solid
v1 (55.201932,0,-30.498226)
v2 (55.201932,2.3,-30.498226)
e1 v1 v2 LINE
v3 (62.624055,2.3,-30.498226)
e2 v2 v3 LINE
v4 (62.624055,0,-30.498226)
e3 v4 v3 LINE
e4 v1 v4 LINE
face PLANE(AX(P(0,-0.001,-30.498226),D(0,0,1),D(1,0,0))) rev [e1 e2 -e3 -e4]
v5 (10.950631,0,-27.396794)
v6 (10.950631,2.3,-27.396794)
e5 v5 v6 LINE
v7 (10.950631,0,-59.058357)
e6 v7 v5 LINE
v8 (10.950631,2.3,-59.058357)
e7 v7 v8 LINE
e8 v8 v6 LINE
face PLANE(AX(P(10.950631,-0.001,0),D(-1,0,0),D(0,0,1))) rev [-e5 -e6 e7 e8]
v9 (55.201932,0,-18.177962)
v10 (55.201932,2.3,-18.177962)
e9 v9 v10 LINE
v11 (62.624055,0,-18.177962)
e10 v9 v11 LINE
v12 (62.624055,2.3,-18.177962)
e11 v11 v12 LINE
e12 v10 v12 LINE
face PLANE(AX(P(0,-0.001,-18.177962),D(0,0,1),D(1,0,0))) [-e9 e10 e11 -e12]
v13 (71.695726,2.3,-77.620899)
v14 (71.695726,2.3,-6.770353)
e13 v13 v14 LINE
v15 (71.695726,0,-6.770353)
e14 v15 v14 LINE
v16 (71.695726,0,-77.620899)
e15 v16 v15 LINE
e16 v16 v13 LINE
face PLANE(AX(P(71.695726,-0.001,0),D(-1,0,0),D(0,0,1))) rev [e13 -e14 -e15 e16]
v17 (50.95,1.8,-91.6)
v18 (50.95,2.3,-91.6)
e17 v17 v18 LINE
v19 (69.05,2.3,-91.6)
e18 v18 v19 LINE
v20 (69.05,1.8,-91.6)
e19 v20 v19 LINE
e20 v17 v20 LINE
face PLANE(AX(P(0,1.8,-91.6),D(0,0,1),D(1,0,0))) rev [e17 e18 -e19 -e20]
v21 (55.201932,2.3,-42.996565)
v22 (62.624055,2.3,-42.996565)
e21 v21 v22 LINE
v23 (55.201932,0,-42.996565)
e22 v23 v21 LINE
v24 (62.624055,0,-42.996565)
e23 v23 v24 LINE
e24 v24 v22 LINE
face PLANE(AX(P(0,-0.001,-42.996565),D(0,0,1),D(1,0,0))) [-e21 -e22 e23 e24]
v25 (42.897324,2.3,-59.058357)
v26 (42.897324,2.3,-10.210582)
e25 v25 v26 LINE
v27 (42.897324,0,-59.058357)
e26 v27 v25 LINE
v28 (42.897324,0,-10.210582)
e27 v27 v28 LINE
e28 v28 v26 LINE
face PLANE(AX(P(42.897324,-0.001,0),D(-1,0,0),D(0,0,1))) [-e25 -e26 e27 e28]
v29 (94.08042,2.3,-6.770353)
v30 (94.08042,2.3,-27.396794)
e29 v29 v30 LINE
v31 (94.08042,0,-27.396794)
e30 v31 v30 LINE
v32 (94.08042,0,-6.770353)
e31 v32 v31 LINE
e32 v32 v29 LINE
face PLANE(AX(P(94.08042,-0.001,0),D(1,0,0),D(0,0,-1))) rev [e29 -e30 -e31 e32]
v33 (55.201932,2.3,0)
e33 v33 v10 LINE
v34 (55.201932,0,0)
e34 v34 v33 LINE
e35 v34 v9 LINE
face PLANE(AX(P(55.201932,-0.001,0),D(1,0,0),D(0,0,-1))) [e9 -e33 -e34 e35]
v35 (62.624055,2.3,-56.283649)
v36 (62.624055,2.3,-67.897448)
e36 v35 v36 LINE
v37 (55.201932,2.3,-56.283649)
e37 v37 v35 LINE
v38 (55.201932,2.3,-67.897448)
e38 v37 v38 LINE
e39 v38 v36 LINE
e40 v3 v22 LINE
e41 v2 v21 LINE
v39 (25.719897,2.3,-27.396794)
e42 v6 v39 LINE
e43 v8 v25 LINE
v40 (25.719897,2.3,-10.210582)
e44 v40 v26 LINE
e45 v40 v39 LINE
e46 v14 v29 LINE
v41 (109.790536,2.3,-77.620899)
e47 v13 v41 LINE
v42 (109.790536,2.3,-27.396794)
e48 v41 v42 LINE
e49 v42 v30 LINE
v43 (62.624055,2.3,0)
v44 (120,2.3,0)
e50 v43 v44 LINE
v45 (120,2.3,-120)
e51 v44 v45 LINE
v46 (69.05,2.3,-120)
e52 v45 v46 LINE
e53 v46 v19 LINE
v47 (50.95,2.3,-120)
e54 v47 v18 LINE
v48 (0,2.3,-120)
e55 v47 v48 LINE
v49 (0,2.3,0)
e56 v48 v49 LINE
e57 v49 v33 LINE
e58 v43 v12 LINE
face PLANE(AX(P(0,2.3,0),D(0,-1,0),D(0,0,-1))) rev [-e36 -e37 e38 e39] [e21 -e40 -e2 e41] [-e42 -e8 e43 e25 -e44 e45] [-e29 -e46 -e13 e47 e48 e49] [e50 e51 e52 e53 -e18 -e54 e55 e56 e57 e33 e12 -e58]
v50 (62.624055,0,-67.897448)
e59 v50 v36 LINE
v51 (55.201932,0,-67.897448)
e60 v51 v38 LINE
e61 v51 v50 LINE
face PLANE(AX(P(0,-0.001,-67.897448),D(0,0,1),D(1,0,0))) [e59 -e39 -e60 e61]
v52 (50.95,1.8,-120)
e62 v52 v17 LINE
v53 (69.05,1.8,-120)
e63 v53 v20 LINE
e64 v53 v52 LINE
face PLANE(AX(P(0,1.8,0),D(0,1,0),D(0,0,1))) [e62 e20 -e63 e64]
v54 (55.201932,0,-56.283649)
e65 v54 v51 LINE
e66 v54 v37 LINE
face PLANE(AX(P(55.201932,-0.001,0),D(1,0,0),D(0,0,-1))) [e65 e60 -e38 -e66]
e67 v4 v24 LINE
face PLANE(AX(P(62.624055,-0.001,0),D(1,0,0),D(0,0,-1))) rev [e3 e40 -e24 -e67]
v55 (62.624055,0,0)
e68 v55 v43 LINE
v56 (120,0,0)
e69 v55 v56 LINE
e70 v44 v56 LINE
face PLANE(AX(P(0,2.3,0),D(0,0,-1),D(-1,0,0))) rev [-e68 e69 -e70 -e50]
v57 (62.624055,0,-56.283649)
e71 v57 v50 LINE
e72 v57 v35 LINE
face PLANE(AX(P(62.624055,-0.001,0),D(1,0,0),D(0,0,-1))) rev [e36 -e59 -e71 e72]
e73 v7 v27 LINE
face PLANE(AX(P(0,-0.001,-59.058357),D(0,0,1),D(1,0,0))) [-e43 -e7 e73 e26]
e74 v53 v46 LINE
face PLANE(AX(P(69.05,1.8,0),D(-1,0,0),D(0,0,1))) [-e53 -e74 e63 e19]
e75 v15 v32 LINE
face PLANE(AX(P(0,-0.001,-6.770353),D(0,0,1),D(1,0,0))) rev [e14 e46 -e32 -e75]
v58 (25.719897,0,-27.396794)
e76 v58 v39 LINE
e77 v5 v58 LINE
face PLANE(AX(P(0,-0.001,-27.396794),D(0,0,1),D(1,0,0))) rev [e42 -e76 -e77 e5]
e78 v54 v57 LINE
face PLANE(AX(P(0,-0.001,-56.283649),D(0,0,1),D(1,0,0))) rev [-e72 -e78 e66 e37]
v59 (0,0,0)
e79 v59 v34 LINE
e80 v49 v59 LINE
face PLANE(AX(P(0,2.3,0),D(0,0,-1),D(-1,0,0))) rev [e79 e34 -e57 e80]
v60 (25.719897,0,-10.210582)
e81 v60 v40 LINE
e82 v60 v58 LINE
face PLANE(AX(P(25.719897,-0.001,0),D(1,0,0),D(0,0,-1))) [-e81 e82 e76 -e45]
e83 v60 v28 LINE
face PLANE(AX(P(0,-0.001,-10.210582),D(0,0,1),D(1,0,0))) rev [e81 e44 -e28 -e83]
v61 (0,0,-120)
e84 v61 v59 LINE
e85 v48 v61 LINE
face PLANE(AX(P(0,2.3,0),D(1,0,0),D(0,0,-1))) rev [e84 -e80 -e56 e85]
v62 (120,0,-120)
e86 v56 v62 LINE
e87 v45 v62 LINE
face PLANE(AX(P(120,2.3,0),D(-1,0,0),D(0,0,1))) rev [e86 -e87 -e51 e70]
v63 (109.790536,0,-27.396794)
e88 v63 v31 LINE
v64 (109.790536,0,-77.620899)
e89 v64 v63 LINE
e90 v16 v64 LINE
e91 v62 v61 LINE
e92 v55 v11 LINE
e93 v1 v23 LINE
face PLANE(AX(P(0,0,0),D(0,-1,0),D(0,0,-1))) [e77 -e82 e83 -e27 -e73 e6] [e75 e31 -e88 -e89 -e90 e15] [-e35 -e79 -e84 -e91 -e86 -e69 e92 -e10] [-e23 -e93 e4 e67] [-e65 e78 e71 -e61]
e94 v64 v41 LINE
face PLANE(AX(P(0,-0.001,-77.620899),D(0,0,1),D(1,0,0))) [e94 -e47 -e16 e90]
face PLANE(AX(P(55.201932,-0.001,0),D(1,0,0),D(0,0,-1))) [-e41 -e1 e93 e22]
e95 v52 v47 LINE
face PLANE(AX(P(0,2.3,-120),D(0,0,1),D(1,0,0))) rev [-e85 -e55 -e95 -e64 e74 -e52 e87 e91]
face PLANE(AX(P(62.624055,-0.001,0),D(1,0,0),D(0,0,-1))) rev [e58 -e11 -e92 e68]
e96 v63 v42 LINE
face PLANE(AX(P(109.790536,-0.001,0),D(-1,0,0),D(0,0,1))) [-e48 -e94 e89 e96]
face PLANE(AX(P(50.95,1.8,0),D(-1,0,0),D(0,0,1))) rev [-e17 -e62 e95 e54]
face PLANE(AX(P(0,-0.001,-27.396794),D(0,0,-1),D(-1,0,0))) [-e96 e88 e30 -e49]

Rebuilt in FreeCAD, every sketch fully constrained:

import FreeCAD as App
import Part
import Sketcher

V = App.Vector
Q = App.Units.Quantity

doc = App.newDocument("Part")
body = doc.addObject("PartDesign::Body", "Body")

sketch1 = body.newObject("Sketcher::SketchObject", "Sketch")
sketch1.AttachmentSupport = (doc.getObject("XZ_Plane"), [""])
sketch1.MapMode = "FlatFace"
sketch1.addGeometry(Part.LineSegment(V(0, -120, 0), V(0, 0, 0)), False)
sketch1.addGeometry(Part.LineSegment(V(0, 0, 0), V(120, 0, 0)), False)
sketch1.addGeometry(Part.LineSegment(V(120, 0, 0), V(120, -120, 0)), False)
sketch1.addGeometry(Part.LineSegment(V(120, -120, 0), V(0, -120, 0)), False)
sketch1.addConstraint(Sketcher.Constraint("Coincident", 0, 2, 1, 1))
sketch1.addConstraint(Sketcher.Constraint("Coincident", 1, 2, 2, 1))
sketch1.addConstraint(Sketcher.Constraint("Coincident", 2, 2, 3, 1))
sketch1.addConstraint(Sketcher.Constraint("Coincident", 3, 2, 0, 1))
sketch1.addConstraint(Sketcher.Constraint("Vertical", 0))
sketch1.addConstraint(Sketcher.Constraint("Horizontal", 1))
sketch1.addConstraint(Sketcher.Constraint("Vertical", 2))
sketch1.addConstraint(Sketcher.Constraint("Horizontal", 3))
sketch1.addConstraint(Sketcher.Constraint("Coincident", 0, 2, -1, 1))
sketch1.addConstraint(Sketcher.Constraint("Equal", 3, 0))
sketch1.addConstraint(Sketcher.Constraint("DistanceX", 1, 1, 1, 2, Q("120 mm")))
pad1 = body.newObject("PartDesign::Pad", "Pad")
pad1.Profile = sketch1
pad1.Length = 2.3
pad1.Reversed = True

sketch2 = body.newObject("Sketcher::SketchObject", "Sketch001")
sketch2.AttachmentSupport = (doc.getObject("XZ_Plane"), [""])
sketch2.MapMode = "FlatFace"
sketch2.AttachmentOffset = App.Placement(V(0, 0, -2.3), App.Rotation())
sketch2.addGeometry(Part.LineSegment(V(43, -59, 0), V(11, -59, 0)), False)
sketch2.addGeometry(Part.LineSegment(V(11, -59, 0), V(11, -27, 0)), False)
sketch2.addGeometry(Part.LineSegment(V(11, -27, 0), V(26, -27, 0)), False)
sketch2.addGeometry(Part.LineSegment(V(26, -27, 0), V(26, -10, 0)), False)
sketch2.addGeometry(Part.LineSegment(V(26, -10, 0), V(43, -10, 0)), False)
sketch2.addGeometry(Part.LineSegment(V(43, -10, 0), V(43, -59, 0)), False)
sketch2.addConstraint(Sketcher.Constraint("Coincident", 0, 2, 1, 1))
sketch2.addConstraint(Sketcher.Constraint("Coincident", 1, 2, 2, 1))
sketch2.addConstraint(Sketcher.Constraint("Coincident", 2, 2, 3, 1))
sketch2.addConstraint(Sketcher.Constraint("Coincident", 3, 2, 4, 1))
sketch2.addConstraint(Sketcher.Constraint("Coincident", 4, 2, 5, 1))
sketch2.addConstraint(Sketcher.Constraint("Coincident", 5, 2, 0, 1))
sketch2.addConstraint(Sketcher.Constraint("Horizontal", 0))
sketch2.addConstraint(Sketcher.Constraint("Vertical", 1))
sketch2.addConstraint(Sketcher.Constraint("Horizontal", 2))
sketch2.addConstraint(Sketcher.Constraint("Vertical", 3))
sketch2.addConstraint(Sketcher.Constraint("Horizontal", 4))
sketch2.addConstraint(Sketcher.Constraint("Vertical", 5))
sketch2.addConstraint(Sketcher.Constraint("DistanceX", 0, 2, 0, 1, Q("31.946693 mm")))
sketch2.addConstraint(Sketcher.Constraint("DistanceX", 2, 1, 2, 2, Q("14.769266 mm")))
sketch2.addConstraint(Sketcher.Constraint("DistanceY", 1, 1, 1, 2, Q("31.661562 mm")))
sketch2.addConstraint(Sketcher.Constraint("DistanceY", 3, 1, 3, 2, Q("17.186212 mm")))
sketch2.addConstraint(Sketcher.Constraint("DistanceX", -1, 1, 0, 2, Q("10.950631 mm")))
sketch2.addConstraint(Sketcher.Constraint("DistanceY", 0, 2, -1, 1, Q("59.058357 mm")))
pocket1 = body.newObject("PartDesign::Pocket", "Pocket")
pocket1.Profile = sketch2
pocket1.Type = "UpToFirst"
pocket1.Reversed = True

sketch3 = body.newObject("Sketcher::SketchObject", "Sketch002")
sketch3.AttachmentSupport = (doc.getObject("XZ_Plane"), [""])
sketch3.MapMode = "FlatFace"
sketch3.AttachmentOffset = App.Placement(V(0, 0, -2.3), App.Rotation())
sketch3.addGeometry(Part.LineSegment(V(110, -78, 0), V(72, -78, 0)), False)
sketch3.addGeometry(Part.LineSegment(V(72, -78, 0), V(72, -7, 0)), False)
sketch3.addGeometry(Part.LineSegment(V(72, -7, 0), V(94, -7, 0)), False)
sketch3.addGeometry(Part.LineSegment(V(94, -7, 0), V(94, -27, 0)), False)
sketch3.addGeometry(Part.LineSegment(V(94, -27, 0), V(110, -27, 0)), False)
sketch3.addGeometry(Part.LineSegment(V(110, -27, 0), V(110, -78, 0)), False)
sketch3.addConstraint(Sketcher.Constraint("Coincident", 0, 2, 1, 1))
sketch3.addConstraint(Sketcher.Constraint("Coincident", 1, 2, 2, 1))
sketch3.addConstraint(Sketcher.Constraint("Coincident", 2, 2, 3, 1))
sketch3.addConstraint(Sketcher.Constraint("Coincident", 3, 2, 4, 1))
sketch3.addConstraint(Sketcher.Constraint("Coincident", 4, 2, 5, 1))
sketch3.addConstraint(Sketcher.Constraint("Coincident", 5, 2, 0, 1))
sketch3.addConstraint(Sketcher.Constraint("Horizontal", 0))
sketch3.addConstraint(Sketcher.Constraint("Vertical", 1))
sketch3.addConstraint(Sketcher.Constraint("Horizontal", 2))
sketch3.addConstraint(Sketcher.Constraint("Vertical", 3))
sketch3.addConstraint(Sketcher.Constraint("Horizontal", 4))
sketch3.addConstraint(Sketcher.Constraint("Vertical", 5))
sketch3.addConstraint(Sketcher.Constraint("DistanceX", 0, 2, 0, 1, Q("38.09481 mm")))
sketch3.addConstraint(Sketcher.Constraint("DistanceY", 3, 2, 3, 1, Q("20.626441 mm")))
sketch3.addConstraint(Sketcher.Constraint("DistanceY", 0, 2, -1, 1, Q("77.620899 mm")))
sketch3.addConstraint(Sketcher.Constraint("DistanceX", 2, 1, 2, 2, Q("22.384695 mm")))
sketch3.addConstraint(Sketcher.Constraint("DistanceY", 1, 1, 1, 2, Q("70.850546 mm")))
sketch3.addConstraint(Sketcher.Constraint("DistanceX", -1, 1, 2, 2, Q("94.08042 mm")))
pocket2 = body.newObject("PartDesign::Pocket", "Pocket001")
pocket2.Profile = sketch3
pocket2.Type = "UpToFirst"
pocket2.Reversed = True

sketch4 = body.newObject("Sketcher::SketchObject", "Sketch003")
sketch4.AttachmentSupport = (doc.getObject("XZ_Plane"), [""])
sketch4.MapMode = "FlatFace"
sketch4.AttachmentOffset = App.Placement(V(0, 0, -2.3), App.Rotation())
sketch4.addGeometry(Part.LineSegment(V(55, -18, 0), V(55, 0, 0)), False)
sketch4.addGeometry(Part.LineSegment(V(55, 0, 0), V(63, 0, 0)), False)
sketch4.addGeometry(Part.LineSegment(V(63, 0, 0), V(63, -18, 0)), False)
sketch4.addGeometry(Part.LineSegment(V(63, -18, 0), V(55, -18, 0)), False)
sketch4.addConstraint(Sketcher.Constraint("Coincident", 0, 2, 1, 1))
sketch4.addConstraint(Sketcher.Constraint("Coincident", 1, 2, 2, 1))
sketch4.addConstraint(Sketcher.Constraint("Coincident", 2, 2, 3, 1))
sketch4.addConstraint(Sketcher.Constraint("Coincident", 3, 2, 0, 1))
sketch4.addConstraint(Sketcher.Constraint("Vertical", 0))
sketch4.addConstraint(Sketcher.Constraint("Horizontal", 1))
sketch4.addConstraint(Sketcher.Constraint("Vertical", 2))
sketch4.addConstraint(Sketcher.Constraint("Horizontal", 3))
sketch4.addConstraint(Sketcher.Constraint("PointOnObject", 0, 2, -1))
sketch4.addConstraint(Sketcher.Constraint("DistanceY", 0, 1, 0, 2, Q("18.177962 mm")))
sketch4.addConstraint(Sketcher.Constraint("DistanceX", 1, 1, 1, 2, Q("7.422123 mm")))
sketch4.addConstraint(Sketcher.Constraint("DistanceX", -1, 1, 0, 2, Q("55.201932 mm")))
pocket3 = body.newObject("PartDesign::Pocket", "Pocket002")
pocket3.Profile = sketch4
pocket3.Type = "UpToFirst"
pocket3.Reversed = True

sketch5 = body.newObject("Sketcher::SketchObject", "Sketch004")
sketch5.AttachmentSupport = (doc.getObject("XZ_Plane"), [""])
sketch5.MapMode = "FlatFace"
sketch5.AttachmentOffset = App.Placement(V(0, 0, -2.3), App.Rotation())
sketch5.addGeometry(Part.LineSegment(V(55, -43, 0), V(55, -30, 0)), False)
sketch5.addGeometry(Part.LineSegment(V(55, -30, 0), V(63, -30, 0)), False)
sketch5.addGeometry(Part.LineSegment(V(63, -30, 0), V(63, -43, 0)), False)
sketch5.addGeometry(Part.LineSegment(V(63, -43, 0), V(55, -43, 0)), False)
sketch5.addConstraint(Sketcher.Constraint("Coincident", 0, 2, 1, 1))
sketch5.addConstraint(Sketcher.Constraint("Coincident", 1, 2, 2, 1))
sketch5.addConstraint(Sketcher.Constraint("Coincident", 2, 2, 3, 1))
sketch5.addConstraint(Sketcher.Constraint("Coincident", 3, 2, 0, 1))
sketch5.addConstraint(Sketcher.Constraint("Vertical", 0))
sketch5.addConstraint(Sketcher.Constraint("Horizontal", 1))
sketch5.addConstraint(Sketcher.Constraint("Vertical", 2))
sketch5.addConstraint(Sketcher.Constraint("Horizontal", 3))
sketch5.addConstraint(Sketcher.Constraint("DistanceY", 0, 1, 0, 2, Q("12.498339 mm")))
sketch5.addConstraint(Sketcher.Constraint("DistanceX", 1, 1, 1, 2, Q("7.422123 mm")))
sketch5.addConstraint(Sketcher.Constraint("DistanceX", -1, 1, 0, 2, Q("55.201932 mm")))
sketch5.addConstraint(Sketcher.Constraint("DistanceY", 0, 2, -1, 1, Q("30.498226 mm")))
pocket4 = body.newObject("PartDesign::Pocket", "Pocket003")
pocket4.Profile = sketch5
pocket4.Type = "UpToFirst"
pocket4.Reversed = True

sketch6 = body.newObject("Sketcher::SketchObject", "Sketch005")
sketch6.AttachmentSupport = (doc.getObject("XZ_Plane"), [""])
sketch6.MapMode = "FlatFace"
sketch6.AttachmentOffset = App.Placement(V(0, 0, -2.3), App.Rotation())
sketch6.addGeometry(Part.LineSegment(V(55, -68, 0), V(55, -56, 0)), False)
sketch6.addGeometry(Part.LineSegment(V(55, -56, 0), V(63, -56, 0)), False)
sketch6.addGeometry(Part.LineSegment(V(63, -56, 0), V(63, -68, 0)), False)
sketch6.addGeometry(Part.LineSegment(V(63, -68, 0), V(55, -68, 0)), False)
sketch6.addConstraint(Sketcher.Constraint("Coincident", 0, 2, 1, 1))
sketch6.addConstraint(Sketcher.Constraint("Coincident", 1, 2, 2, 1))
sketch6.addConstraint(Sketcher.Constraint("Coincident", 2, 2, 3, 1))
sketch6.addConstraint(Sketcher.Constraint("Coincident", 3, 2, 0, 1))
sketch6.addConstraint(Sketcher.Constraint("Vertical", 0))
sketch6.addConstraint(Sketcher.Constraint("Horizontal", 1))
sketch6.addConstraint(Sketcher.Constraint("Vertical", 2))
sketch6.addConstraint(Sketcher.Constraint("Horizontal", 3))
sketch6.addConstraint(Sketcher.Constraint("DistanceY", 0, 1, 0, 2, Q("11.613799 mm")))
sketch6.addConstraint(Sketcher.Constraint("DistanceX", 1, 1, 1, 2, Q("7.422123 mm")))
sketch6.addConstraint(Sketcher.Constraint("DistanceY", 0, 2, -1, 1, Q("56.283649 mm")))
sketch6.addConstraint(Sketcher.Constraint("DistanceX", -1, 1, 0, 2, Q("55.201932 mm")))
pocket5 = body.newObject("PartDesign::Pocket", "Pocket004")
pocket5.Profile = sketch6
pocket5.Type = "UpToFirst"
pocket5.Reversed = True

sketch7 = body.newObject("Sketcher::SketchObject", "Sketch006")
sketch7.AttachmentSupport = (doc.getObject("XZ_Plane"), [""])
sketch7.MapMode = "FlatFace"
sketch7.AttachmentOffset = App.Placement(V(0, 0, -2.3), App.Rotation())
sketch7.addGeometry(Part.LineSegment(V(51, -120, 0), V(51, -92, 0)), False)
sketch7.addGeometry(Part.LineSegment(V(51, -92, 0), V(69, -92, 0)), False)
sketch7.addGeometry(Part.LineSegment(V(69, -92, 0), V(69, -120, 0)), False)
sketch7.addGeometry(Part.LineSegment(V(69, -120, 0), V(51, -120, 0)), False)
sketch7.addConstraint(Sketcher.Constraint("Coincident", 0, 2, 1, 1))
sketch7.addConstraint(Sketcher.Constraint("Coincident", 1, 2, 2, 1))
sketch7.addConstraint(Sketcher.Constraint("Coincident", 2, 2, 3, 1))
sketch7.addConstraint(Sketcher.Constraint("Coincident", 3, 2, 0, 1))
sketch7.addConstraint(Sketcher.Constraint("Vertical", 0))
sketch7.addConstraint(Sketcher.Constraint("Horizontal", 1))
sketch7.addConstraint(Sketcher.Constraint("Vertical", 2))
sketch7.addConstraint(Sketcher.Constraint("Horizontal", 3))
sketch7.addConstraint(Sketcher.Constraint("DistanceX", 1, 1, 1, 2, Q("18.1 mm")))
sketch7.addConstraint(Sketcher.Constraint("DistanceY", 0, 1, 0, 2, Q("28.4 mm")))
sketch7.addConstraint(Sketcher.Constraint("DistanceY", 2, 2, -1, 1, Q("120 mm")))
sketch7.addConstraint(Sketcher.Constraint("DistanceX", -1, 1, 0, 2, Q("50.95 mm")))
pocket6 = body.newObject("PartDesign::Pocket", "Pocket005")
pocket6.Profile = sketch7
pocket6.Length = 0.5
pocket6.Reversed = True

doc.recompute()
